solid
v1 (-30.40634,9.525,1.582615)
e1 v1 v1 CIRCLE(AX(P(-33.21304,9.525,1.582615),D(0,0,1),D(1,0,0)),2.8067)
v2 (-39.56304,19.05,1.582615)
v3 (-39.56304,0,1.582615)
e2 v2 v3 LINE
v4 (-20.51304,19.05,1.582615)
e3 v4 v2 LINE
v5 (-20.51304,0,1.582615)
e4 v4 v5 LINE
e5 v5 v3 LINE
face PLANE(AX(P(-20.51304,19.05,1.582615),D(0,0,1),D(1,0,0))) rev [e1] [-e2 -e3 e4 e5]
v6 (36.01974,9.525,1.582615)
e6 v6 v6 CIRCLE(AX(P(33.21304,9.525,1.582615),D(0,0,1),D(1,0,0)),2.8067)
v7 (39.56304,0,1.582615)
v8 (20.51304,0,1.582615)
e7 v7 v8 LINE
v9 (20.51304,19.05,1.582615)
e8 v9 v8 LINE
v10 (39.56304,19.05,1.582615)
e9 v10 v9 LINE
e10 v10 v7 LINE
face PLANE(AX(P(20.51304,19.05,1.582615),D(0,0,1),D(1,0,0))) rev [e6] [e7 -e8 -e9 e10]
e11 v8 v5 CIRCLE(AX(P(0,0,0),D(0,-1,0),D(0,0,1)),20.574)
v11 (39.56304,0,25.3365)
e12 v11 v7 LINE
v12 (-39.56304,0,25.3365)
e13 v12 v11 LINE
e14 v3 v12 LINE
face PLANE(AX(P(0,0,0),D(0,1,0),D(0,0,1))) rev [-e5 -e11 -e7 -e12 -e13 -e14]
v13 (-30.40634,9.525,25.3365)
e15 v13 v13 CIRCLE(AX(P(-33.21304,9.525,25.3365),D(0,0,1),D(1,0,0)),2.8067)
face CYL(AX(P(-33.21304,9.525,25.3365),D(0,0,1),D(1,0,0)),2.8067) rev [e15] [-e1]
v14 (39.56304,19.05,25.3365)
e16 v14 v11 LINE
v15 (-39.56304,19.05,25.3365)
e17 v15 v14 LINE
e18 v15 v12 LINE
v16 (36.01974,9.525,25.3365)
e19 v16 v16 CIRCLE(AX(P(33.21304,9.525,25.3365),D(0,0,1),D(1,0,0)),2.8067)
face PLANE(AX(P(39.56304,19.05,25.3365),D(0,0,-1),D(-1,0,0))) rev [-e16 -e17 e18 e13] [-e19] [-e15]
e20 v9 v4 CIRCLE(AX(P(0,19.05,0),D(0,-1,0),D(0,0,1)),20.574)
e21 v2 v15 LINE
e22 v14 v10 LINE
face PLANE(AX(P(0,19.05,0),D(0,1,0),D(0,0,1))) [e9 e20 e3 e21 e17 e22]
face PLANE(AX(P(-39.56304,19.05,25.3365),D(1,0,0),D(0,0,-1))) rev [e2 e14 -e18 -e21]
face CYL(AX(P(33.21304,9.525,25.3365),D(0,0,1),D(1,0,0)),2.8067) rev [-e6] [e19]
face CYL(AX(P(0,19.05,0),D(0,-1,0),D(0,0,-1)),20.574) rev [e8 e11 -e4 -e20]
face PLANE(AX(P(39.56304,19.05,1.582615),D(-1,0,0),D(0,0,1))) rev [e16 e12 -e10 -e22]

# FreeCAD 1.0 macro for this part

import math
import FreeCAD as App
import Part
import Sketcher
Q = App.Units.Quantity

doc = App.newDocument("Part")
body = doc.addObject("PartDesign::Body", "Body")

# Sketch on XZ plane
sketch1 = body.newObject("Sketcher::SketchObject", "Sketch")
sketch1.AttachmentSupport = (doc.getObject("XZ_Plane"), [""])
sketch1.MapMode = "FlatFace"
sketch1.addGeometry([
    Part.LineSegment(App.Vector(40, 25, 0), App.Vector(40, 2, 0)),  # 0
    Part.LineSegment(App.Vector(40, 2, 0), App.Vector(21, 2, 0)),  # 1
    Part.ArcOfCircle(Part.Circle(App.Vector(0, 0, 0), App.Vector(0, 0, 1), 21), math.radians(4), math.radians(176)),  # 2
    Part.LineSegment(App.Vector(-21, 2, 0), App.Vector(-40, 2, 0)),  # 3
    Part.LineSegment(App.Vector(-40, 2, 0), App.Vector(-40, 25, 0)),  # 4
    Part.LineSegment(App.Vector(-40, 25, 0), App.Vector(40, 25, 0)),  # 5
], False)
sketch1.addConstraint([
    Sketcher.Constraint("Coincident", 0, 2, 1, 1),
    Sketcher.Constraint("Coincident", 1, 2, 2, 1),
    Sketcher.Constraint("Coincident", 2, 2, 3, 1),
    Sketcher.Constraint("Coincident", 3, 2, 4, 1),
    Sketcher.Constraint("Coincident", 4, 2, 5, 1),
    Sketcher.Constraint("Coincident", 5, 2, 0, 1),
    Sketcher.Constraint("Vertical", 0),
    Sketcher.Constraint("Horizontal", 1),
    Sketcher.Constraint("Horizontal", 3),
    Sketcher.Constraint("Vertical", 4),
    Sketcher.Constraint("Horizontal", 5),
    Sketcher.Constraint("Coincident", 2, 3, -1, 1),
    Sketcher.Constraint("Symmetric", 0, 2, 3, 2, -2),
    Sketcher.Constraint("Radius", 2, Q("0.81 in")),
    Sketcher.Constraint("DistanceX", 1, 2, 1, 1, Q("0.75 in")),
    Sketcher.Constraint("DistanceX", 5, 1, 5, 2, Q("3.1152 in")),
    Sketcher.Constraint("DistanceY", -1, 1, 4, 2, Q("0.9975 in")),
])
pad1 = body.newObject("PartDesign::Pad", "Pad")
pad1.Profile = sketch1
pad1.Length = Q("0.75 in")
pad1.Reversed = True

# Sketch on XY plane
sketch2 = body.newObject("Sketcher::SketchObject", "Sketch001")
sketch2.AttachmentSupport = (doc.getObject("XY_Plane"), [""])
sketch2.MapMode = "FlatFace"
sketch2.AttachmentOffset = App.Placement(App.Vector(0, 0, 0.9975 * 25.4), App.Rotation())
sketch2.addGeometry([
    Part.Circle(App.Vector(33.2, 9.5, 0), App.Vector(0, 0, 1), 1.3),
    Part.Circle(App.Vector(-33.2, 9.5, 0), App.Vector(0, 0, 1), 1.3),
], False)
sketch2.addConstraint([
    Sketcher.Constraint("Equal", 0, 1),
    Sketcher.Constraint("Symmetric", 0, 3, 1, 3, -2),
    Sketcher.Constraint("Diameter", 0, Q("0.1 in")),
    Sketcher.Constraint("DistanceY", -1, 1, 0, 3, Q("0.375 in")),
    Sketcher.Constraint("DistanceX", -1, 1, 0, 3, Q("1.3076 in")),
])
pocket1 = body.newObject("PartDesign::Pocket", "Pocket")
pocket1.Profile = sketch2
pocket1.Type = "ThroughAll"

# Sketch on XY plane
sketch3 = body.newObject("Sketcher::SketchObject", "Sketch002")
sketch3.AttachmentSupport = (doc.getObject("XY_Plane"), [""])
sketch3.MapMode = "FlatFace"
sketch3.AttachmentOffset = App.Placement(App.Vector(0, 0, 0.9975 * 25.4), App.Rotation())
sketch3.addGeometry([
    Part.Circle(App.Vector(-33.2, 9.5, 0), App.Vector(0, 0, 1), 2.8),
    Part.Circle(App.Vector(33.2, 9.5, 0), App.Vector(0, 0, 1), 2.8),
], False)
sketch3.addConstraint([
    Sketcher.Constraint("Equal", 0, 1),
    Sketcher.Constraint("Symmetric", 0, 3, 1, 3, -2),
    Sketcher.Constraint("Diameter", 0, Q("0.221 in")),
    Sketcher.Constraint("DistanceY", -1, 1, 0, 3, Q("0.375 in")),
    Sketcher.Constraint("DistanceX", 0, 3, -1, 1, Q("1.3076 in")),
])
doc.recompute()
hole = body.newObject("PartDesign::Hole", "Hole")
hole.Profile = sketch3
hole.ThreadType = "None"
hole.Diameter = Q("0.221 in")
hole.DepthType = "ThroughAll"

doc.recompute()
